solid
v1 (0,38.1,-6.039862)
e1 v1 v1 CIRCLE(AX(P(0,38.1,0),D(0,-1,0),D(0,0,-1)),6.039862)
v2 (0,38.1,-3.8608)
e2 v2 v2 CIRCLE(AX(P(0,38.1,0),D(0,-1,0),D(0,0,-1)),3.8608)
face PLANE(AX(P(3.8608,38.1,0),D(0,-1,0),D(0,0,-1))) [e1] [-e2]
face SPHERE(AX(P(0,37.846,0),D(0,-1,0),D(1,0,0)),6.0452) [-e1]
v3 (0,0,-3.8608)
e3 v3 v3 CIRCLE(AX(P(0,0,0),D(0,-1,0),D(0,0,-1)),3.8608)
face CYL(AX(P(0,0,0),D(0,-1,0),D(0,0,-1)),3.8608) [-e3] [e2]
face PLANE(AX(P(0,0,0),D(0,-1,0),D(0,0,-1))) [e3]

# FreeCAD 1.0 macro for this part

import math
import FreeCAD as App
import Part
import Sketcher

V = App.Vector
Q = App.Units.Quantity

doc = App.newDocument("Part")
body = doc.addObject("PartDesign::Body", "Body")

# Sketch on XY plane
sketch1 = body.newObject("Sketcher::SketchObject", "Sketch")
sketch1.AttachmentSupport = (doc.getObject("XY_Plane"), [""])
sketch1.MapMode = "FlatFace"
sketch1.addGeometry([
    Part.LineSegment(V(0, 0, 0), V(3.8608, 0, 0)),  # 0
    Part.LineSegment(V(3.8608, 0, 0), V(3.8608, 38.1, 0)),  # 1
    Part.LineSegment(V(3.8608, 38.1, 0), V(6.039862, 38.1, 0)),  # 2
    Part.ArcOfCircle(Part.Circle(V(0, 37.846, 0), V(0, 0, 1), 6.0452), math.radians(2.408095), math.radians(90)),  # 3
    Part.LineSegment(V(0, 43.8912, 0), V(0, 0, 0)),  # 4
], False)
sketch1.addConstraint([
    Sketcher.Constraint("Coincident", 0, 2, 1, 1),
    Sketcher.Constraint("Coincident", 1, 2, 2, 1),
    Sketcher.Constraint("Coincident", 2, 2, 3, 1),
    Sketcher.Constraint("Coincident", 3, 2, 4, 1),
    Sketcher.Constraint("Coincident", 4, 2, 0, 1),
    Sketcher.Constraint("Horizontal", 0),
    Sketcher.Constraint("Vertical", 1),
    Sketcher.Constraint("Horizontal", 2),
    Sketcher.Constraint("Vertical", 4),
    Sketcher.Constraint("Coincident", 4, 2, -1, 1),
    Sketcher.Constraint("PointOnObject", 3, 3, -2),
    Sketcher.Constraint("DistanceY", 1, 1, 1, 2, Q("1.5 in")),
    Sketcher.Constraint("Radius", 3, Q("0.238 in")),
    Sketcher.Constraint("DistanceX", 0, 1, 0, 2, Q("0.152 in")),
    Sketcher.Constraint("DistanceY", 4, 2, 4, 1, Q("1.728 in")),
])
revolution = body.newObject("PartDesign::Revolution", "Revolution")
revolution.Profile = sketch1
revolution.ReferenceAxis = (sketch1, ["V_Axis"])
revolution.Angle = 360

doc.recompute()
